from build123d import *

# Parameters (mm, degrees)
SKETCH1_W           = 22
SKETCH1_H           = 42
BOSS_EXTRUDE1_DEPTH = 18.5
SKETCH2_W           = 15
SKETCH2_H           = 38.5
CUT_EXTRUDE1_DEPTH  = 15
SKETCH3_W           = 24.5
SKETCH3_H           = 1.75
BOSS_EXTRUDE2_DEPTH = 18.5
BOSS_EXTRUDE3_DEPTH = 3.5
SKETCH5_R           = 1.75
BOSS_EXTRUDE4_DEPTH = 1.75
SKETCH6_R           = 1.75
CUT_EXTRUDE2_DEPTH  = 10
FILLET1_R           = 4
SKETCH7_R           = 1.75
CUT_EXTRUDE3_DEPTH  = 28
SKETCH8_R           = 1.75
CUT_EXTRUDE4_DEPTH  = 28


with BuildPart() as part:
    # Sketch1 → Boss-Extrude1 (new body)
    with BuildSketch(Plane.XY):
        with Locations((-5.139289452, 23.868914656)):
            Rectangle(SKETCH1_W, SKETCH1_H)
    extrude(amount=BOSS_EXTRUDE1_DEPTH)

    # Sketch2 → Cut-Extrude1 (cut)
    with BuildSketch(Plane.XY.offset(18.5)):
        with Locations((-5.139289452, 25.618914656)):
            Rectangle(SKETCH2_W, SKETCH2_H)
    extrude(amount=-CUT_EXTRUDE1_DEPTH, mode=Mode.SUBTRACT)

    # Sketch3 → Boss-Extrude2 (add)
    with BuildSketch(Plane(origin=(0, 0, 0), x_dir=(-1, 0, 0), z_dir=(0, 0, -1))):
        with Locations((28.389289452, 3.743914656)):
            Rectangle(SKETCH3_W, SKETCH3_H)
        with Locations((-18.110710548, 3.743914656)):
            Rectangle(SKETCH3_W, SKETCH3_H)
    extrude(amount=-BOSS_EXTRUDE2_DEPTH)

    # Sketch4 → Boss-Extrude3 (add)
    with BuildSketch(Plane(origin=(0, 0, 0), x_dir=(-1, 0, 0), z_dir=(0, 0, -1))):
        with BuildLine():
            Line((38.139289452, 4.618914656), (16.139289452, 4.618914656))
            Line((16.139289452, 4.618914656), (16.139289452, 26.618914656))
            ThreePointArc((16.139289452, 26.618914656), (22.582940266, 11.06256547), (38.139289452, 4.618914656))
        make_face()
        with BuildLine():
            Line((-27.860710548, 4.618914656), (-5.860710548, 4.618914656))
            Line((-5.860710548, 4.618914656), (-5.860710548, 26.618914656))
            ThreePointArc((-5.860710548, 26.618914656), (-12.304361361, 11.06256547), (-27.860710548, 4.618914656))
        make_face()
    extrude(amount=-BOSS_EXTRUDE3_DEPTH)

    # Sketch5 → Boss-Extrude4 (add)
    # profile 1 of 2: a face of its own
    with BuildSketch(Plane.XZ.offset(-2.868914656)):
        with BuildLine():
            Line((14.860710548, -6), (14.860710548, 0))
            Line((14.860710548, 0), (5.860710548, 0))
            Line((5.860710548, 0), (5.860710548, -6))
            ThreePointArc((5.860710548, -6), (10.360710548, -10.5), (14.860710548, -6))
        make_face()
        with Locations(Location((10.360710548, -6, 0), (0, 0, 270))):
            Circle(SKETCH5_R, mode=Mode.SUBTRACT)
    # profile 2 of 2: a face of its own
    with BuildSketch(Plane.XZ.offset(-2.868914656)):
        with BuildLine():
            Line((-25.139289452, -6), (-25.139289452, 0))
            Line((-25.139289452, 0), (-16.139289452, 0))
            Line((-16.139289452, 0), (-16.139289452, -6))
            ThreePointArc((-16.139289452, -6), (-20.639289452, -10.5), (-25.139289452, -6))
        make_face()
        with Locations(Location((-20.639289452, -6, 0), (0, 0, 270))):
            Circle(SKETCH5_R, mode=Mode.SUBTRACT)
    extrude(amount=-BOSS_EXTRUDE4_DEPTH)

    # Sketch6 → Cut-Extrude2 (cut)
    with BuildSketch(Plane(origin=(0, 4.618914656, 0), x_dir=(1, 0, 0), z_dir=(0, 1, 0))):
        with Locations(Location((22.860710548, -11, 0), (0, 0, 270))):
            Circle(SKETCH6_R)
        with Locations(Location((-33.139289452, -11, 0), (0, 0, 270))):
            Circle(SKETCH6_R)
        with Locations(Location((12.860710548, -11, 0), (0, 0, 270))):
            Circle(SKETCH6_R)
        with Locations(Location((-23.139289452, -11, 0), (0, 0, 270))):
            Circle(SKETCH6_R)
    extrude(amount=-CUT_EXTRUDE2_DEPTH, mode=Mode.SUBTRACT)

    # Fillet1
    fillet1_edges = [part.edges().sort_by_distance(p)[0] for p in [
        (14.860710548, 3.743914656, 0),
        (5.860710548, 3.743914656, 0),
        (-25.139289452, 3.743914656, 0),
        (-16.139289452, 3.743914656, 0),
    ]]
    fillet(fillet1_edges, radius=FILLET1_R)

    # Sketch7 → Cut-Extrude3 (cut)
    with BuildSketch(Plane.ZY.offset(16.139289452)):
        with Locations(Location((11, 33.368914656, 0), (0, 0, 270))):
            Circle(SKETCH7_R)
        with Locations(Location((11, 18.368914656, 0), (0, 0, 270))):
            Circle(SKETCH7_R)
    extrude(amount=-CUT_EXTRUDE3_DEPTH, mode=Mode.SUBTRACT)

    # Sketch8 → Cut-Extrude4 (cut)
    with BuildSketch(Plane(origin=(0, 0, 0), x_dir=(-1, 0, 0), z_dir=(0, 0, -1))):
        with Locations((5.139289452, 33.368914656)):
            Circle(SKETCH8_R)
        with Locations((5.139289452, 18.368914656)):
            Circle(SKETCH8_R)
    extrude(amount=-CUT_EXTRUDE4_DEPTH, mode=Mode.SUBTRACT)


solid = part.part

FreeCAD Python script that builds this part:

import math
import FreeCAD as App
import Part
import Sketcher

V = App.Vector


def edges_at(feature, points):
    """Names of the edges that pass closest to the given points."""
    edges = feature.Shape.Edges
    near = lambda p: min(range(len(edges)), key=lambda i: edges[i].distToShape(Part.Vertex(*p))[0])
    return sorted({f"Edge{near(p) + 1}" for p in points})

doc = App.newDocument("Part")
body = doc.addObject("PartDesign::Body", "Body")

sketch1 = body.newObject("Sketcher::SketchObject", "Sketch")
sketch1.AttachmentSupport = (doc.getObject("XY_Plane"), [""])
sketch1.MapMode = "FlatFace"
sketch1.addGeometry(Part.LineSegment(V(-16, 45, 0), V(-16, 3, 0)), False)
sketch1.addGeometry(Part.LineSegment(V(-16, 3, 0), V(6, 3, 0)), False)
sketch1.addGeometry(Part.LineSegment(V(6, 3, 0), V(6, 45, 0)), False)
sketch1.addGeometry(Part.LineSegment(V(6, 45, 0), V(-16, 45, 0)), False)
sketch1.addConstraint(Sketcher.Constraint("Coincident", 0, 2, 1, 1))
sketch1.addConstraint(Sketcher.Constraint("Coincident", 1, 2, 2, 1))
sketch1.addConstraint(Sketcher.Constraint("Coincident", 2, 2, 3, 1))
sketch1.addConstraint(Sketcher.Constraint("Coincident", 3, 2, 0, 1))
sketch1.addConstraint(Sketcher.Constraint("Vertical", 0))
sketch1.addConstraint(Sketcher.Constraint("Horizontal", 1))
sketch1.addConstraint(Sketcher.Constraint("Vertical", 2))
sketch1.addConstraint(Sketcher.Constraint("Horizontal", 3))
sketch1.addConstraint(Sketcher.Constraint("DistanceX", 1, 1, 1, 2, 22.0))
sketch1.addConstraint(Sketcher.Constraint("DistanceY", 0, 2, 0, 1, 42.0))
sketch1.addConstraint(Sketcher.Constraint("DistanceX", 0, 2, -1, 1, 16.139289))
sketch1.addConstraint(Sketcher.Constraint("DistanceY", -1, 1, 0, 2, 2.868915))
pad1 = body.newObject("PartDesign::Pad", "Pad")
pad1.Profile = sketch1
pad1.Length = 18.5

sketch2 = body.newObject("Sketcher::SketchObject", "Sketch001")
sketch2.AttachmentSupport = (doc.getObject("XY_Plane"), [""])
sketch2.MapMode = "FlatFace"
sketch2.AttachmentOffset = App.Placement(V(0, 0, 18.5), App.Rotation())
sketch2.addGeometry(Part.LineSegment(V(-13, 45, 0), V(-13, 6, 0)), False)
sketch2.addGeometry(Part.LineSegment(V(-13, 6, 0), V(2, 6, 0)), False)
sketch2.addGeometry(Part.LineSegment(V(2, 6, 0), V(2, 45, 0)), False)
sketch2.addGeometry(Part.LineSegment(V(2, 45, 0), V(-13, 45, 0)), False)
sketch2.addConstraint(Sketcher.Constraint("Coincident", 0, 2, 1, 1))
sketch2.addConstraint(Sketcher.Constraint("Coincident", 1, 2, 2, 1))
sketch2.addConstraint(Sketcher.Constraint("Coincident", 2, 2, 3, 1))
sketch2.addConstraint(Sketcher.Constraint("Coincident", 3, 2, 0, 1))
sketch2.addConstraint(Sketcher.Constraint("Vertical", 0))
sketch2.addConstraint(Sketcher.Constraint("Horizontal", 1))
sketch2.addConstraint(Sketcher.Constraint("Vertical", 2))
sketch2.addConstraint(Sketcher.Constraint("Horizontal", 3))
sketch2.addConstraint(Sketcher.Constraint("DistanceX", 1, 1, 1, 2, 15.0))
sketch2.addConstraint(Sketcher.Constraint("DistanceY", 0, 2, 0, 1, 38.5))
sketch2.addConstraint(Sketcher.Constraint("DistanceX", 0, 2, -1, 1, 12.639289))
sketch2.addConstraint(Sketcher.Constraint("DistanceY", -1, 1, 0, 2, 6.368915))
pocket1 = body.newObject("PartDesign::Pocket", "Pocket")
pocket1.Profile = sketch2
pocket1.Length = 15

sketch3 = body.newObject("Sketcher::SketchObject", "Sketch002")
sketch3.AttachmentSupport = (doc.getObject("XY_Plane"), [""])
sketch3.MapMode = "FlatFace"
sketch3.addGeometry(Part.LineSegment(V(-16.1, 4.6, 0), V(-16.1, 2.9, 0)), False)
sketch3.addGeometry(Part.LineSegment(V(-16.1, 2.9, 0), V(-40.6, 2.9, 0)), False)
sketch3.addGeometry(Part.LineSegment(V(-40.6, 2.9, 0), V(-40.6, 4.6, 0)), False)
sketch3.addGeometry(Part.LineSegment(V(-40.6, 4.6, 0), V(-16.1, 4.6, 0)), False)
sketch3.addGeometry(Part.LineSegment(V(30.4, 4.6, 0), V(30.4, 2.9, 0)), False)
sketch3.addGeometry(Part.LineSegment(V(30.4, 2.9, 0), V(5.9, 2.9, 0)), False)
sketch3.addGeometry(Part.LineSegment(V(5.9, 2.9, 0), V(5.9, 4.6, 0)), False)
sketch3.addGeometry(Part.LineSegment(V(5.9, 4.6, 0), V(30.4, 4.6, 0)), False)
sketch3.addConstraint(Sketcher.Constraint("Coincident", 0, 2, 1, 1))
sketch3.addConstraint(Sketcher.Constraint("Coincident", 1, 2, 2, 1))
sketch3.addConstraint(Sketcher.Constraint("Coincident", 2, 2, 3, 1))
sketch3.addConstraint(Sketcher.Constraint("Coincident", 3, 2, 0, 1))
sketch3.addConstraint(Sketcher.Constraint("Coincident", 4, 2, 5, 1))
sketch3.addConstraint(Sketcher.Constraint("Coincident", 5, 2, 6, 1))
sketch3.addConstraint(Sketcher.Constraint("Coincident", 6, 2, 7, 1))
sketch3.addConstraint(Sketcher.Constraint("Coincident", 7, 2, 4, 1))
sketch3.addConstraint(Sketcher.Constraint("Vertical", 0))
sketch3.addConstraint(Sketcher.Constraint("Horizontal", 1))
sketch3.addConstraint(Sketcher.Constraint("Vertical", 2))
sketch3.addConstraint(Sketcher.Constraint("Horizontal", 3))
sketch3.addConstraint(Sketcher.Constraint("Vertical", 4))
sketch3.addConstraint(Sketcher.Constraint("Horizontal", 5))
sketch3.addConstraint(Sketcher.Constraint("Vertical", 6))
sketch3.addConstraint(Sketcher.Constraint("Horizontal", 7))
sketch3.addConstraint(Sketcher.Constraint("Horizontal", 1, 2, 4, 2))
sketch3.addConstraint(Sketcher.Constraint("Horizontal", 3, 2, 6, 2))
sketch3.addConstraint(Sketcher.Constraint("Equal", 3, 5))
sketch3.addConstraint(Sketcher.Constraint("DistanceX", 1, 2, 1, 1, 24.5))
sketch3.addConstraint(Sketcher.Constraint("DistanceX", 1, 2, 4, 2, 71.0))
sketch3.addConstraint(Sketcher.Constraint("DistanceY", 0, 2, 0, 1, 1.75))
sketch3.addConstraint(Sketcher.Constraint("DistanceX", 0, 2, -1, 1, 16.139289))
sketch3.addConstraint(Sketcher.Constraint("DistanceY", -1, 1, 0, 2, 2.868915))
pad2 = body.newObject("PartDesign::Pad", "Pad001")
pad2.Profile = sketch3
pad2.Length = 18.5

sketch4 = body.newObject("Sketcher::SketchObject", "Sketch003")
sketch4.AttachmentSupport = (doc.getObject("XY_Plane"), [""])
sketch4.MapMode = "FlatFace"
sketch4.addGeometry(Part.LineSegment(V(-16, 5, 0), V(-38, 5, 0)), False)
sketch4.addGeometry(Part.ArcOfCircle(Part.Circle(V(-38, 27, 0), V(0, 0, 1), 22), math.radians(-90), math.radians(0)), False)
sketch4.addGeometry(Part.LineSegment(V(-16, 27, 0), V(-16, 5, 0)), False)
sketch4.addGeometry(Part.LineSegment(V(28, 5, 0), V(6, 5, 0)), False)
sketch4.addGeometry(Part.LineSegment(V(6, 5, 0), V(6, 27, 0)), False)
sketch4.addGeometry(Part.ArcOfCircle(Part.Circle(V(28, 27, 0), V(0, 0, 1), 22), math.radians(180), math.radians(270)), False)
sketch4.addConstraint(Sketcher.Constraint("Tangent", 0, 2, 1, 1))
sketch4.addConstraint(Sketcher.Constraint("Tangent", 1, 2, 2, 1))
sketch4.addConstraint(Sketcher.Constraint("Coincident", 2, 2, 0, 1))
sketch4.addConstraint(Sketcher.Constraint("Coincident", 3, 2, 4, 1))
sketch4.addConstraint(Sketcher.Constraint("Tangent", 4, 2, 5, 1))
sketch4.addConstraint(Sketcher.Constraint("Tangent", 5, 2, 3, 1))
sketch4.addConstraint(Sketcher.Constraint("Horizontal", 0))
sketch4.addConstraint(Sketcher.Constraint("Vertical", 2))
sketch4.addConstraint(Sketcher.Constraint("Horizontal", 3))
sketch4.addConstraint(Sketcher.Constraint("Vertical", 4))
sketch4.addConstraint(Sketcher.Constraint("Equal", 1, 5))
sketch4.addConstraint(Sketcher.Constraint("Horizontal", 1, 3, 5, 3))
sketch4.addConstraint(Sketcher.Constraint("Radius", 1, 22.0))
sketch4.addConstraint(Sketcher.Constraint("DistanceX", 1, 3, 5, 3, 66.0))
sketch4.addConstraint(Sketcher.Constraint("DistanceX", 1, 3, -1, 1, 38.139289))
sketch4.addConstraint(Sketcher.Constraint("DistanceY", -1, 1, 1, 3, 26.618915))
pad3 = body.newObject("PartDesign::Pad", "Pad002")
pad3.Profile = sketch4
pad3.Length = 3.5

sketch5 = body.newObject("Sketcher::SketchObject", "Sketch004")
sketch5.AttachmentSupport = (doc.getObject("XZ_Plane"), [""])
sketch5.MapMode = "FlatFace"
sketch5.AttachmentOffset = App.Placement(V(0, 0, -2.868915), App.Rotation())
sketch5.addGeometry(Part.LineSegment(V(14.9, -6, 0), V(14.9, 0, 0)), False)
sketch5.addGeometry(Part.LineSegment(V(14.9, 0, 0), V(5.9, 0, 0)), False)
sketch5.addGeometry(Part.LineSegment(V(5.9, 0, 0), V(5.9, -6, 0)), False)
sketch5.addGeometry(Part.ArcOfCircle(Part.Circle(V(10.4, -6, 0), V(0, 0, 1), 4.5), math.radians(180), math.radians(360)), False)
sketch5.addGeometry(Part.Circle(V(10.4, -6, 0), V(0, 0, 1), 1.8), False)
sketch5.addGeometry(Part.LineSegment(V(-25.1, 0, 0), V(-25.1, -6, 0)), False)
sketch5.addGeometry(Part.ArcOfCircle(Part.Circle(V(-20.6, -6, 0), V(0, 0, 1), 4.5), math.radians(180), math.radians(360)), False)
sketch5.addGeometry(Part.LineSegment(V(-16.1, -6, 0), V(-16.1, 0, 0)), False)
sketch5.addGeometry(Part.LineSegment(V(-16.1, 0, 0), V(-25.1, 0, 0)), False)
sketch5.addGeometry(Part.Circle(V(-20.6, -6, 0), V(0, 0, 1), 1.8), False)
sketch5.addConstraint(Sketcher.Constraint("Coincident", 0, 2, 1, 1))
sketch5.addConstraint(Sketcher.Constraint("Coincident", 1, 2, 2, 1))
sketch5.addConstraint(Sketcher.Constraint("Tangent", 2, 2, 3, 1))
sketch5.addConstraint(Sketcher.Constraint("Tangent", 3, 2, 0, 1))
sketch5.addConstraint(Sketcher.Constraint("Tangent", 5, 2, 6, 1))
sketch5.addConstraint(Sketcher.Constraint("Tangent", 6, 2, 7, 1))
sketch5.addConstraint(Sketcher.Constraint("Coincident", 7, 2, 8, 1))
sketch5.addConstraint(Sketcher.Constraint("Coincident", 8, 2, 5, 1))
sketch5.addConstraint(Sketcher.Constraint("Vertical", 0))
sketch5.addConstraint(Sketcher.Constraint("Horizontal", 1))
sketch5.addConstraint(Sketcher.Constraint("Vertical", 2))
sketch5.addConstraint(Sketcher.Constraint("Vertical", 5))
sketch5.addConstraint(Sketcher.Constraint("Vertical", 7))
sketch5.addConstraint(Sketcher.Constraint("Horizontal", 8))
sketch5.addConstraint(Sketcher.Constraint("Coincident", 4, 3, 3, 3))
sketch5.addConstraint(Sketcher.Constraint("Coincident", 9, 3, 6, 3))
sketch5.addConstraint(Sketcher.Constraint("Equal", 3, 6))
sketch5.addConstraint(Sketcher.Constraint("Equal", 4, 9))
sketch5.addConstraint(Sketcher.Constraint("PointOnObject", 0, 2, -1))
sketch5.addConstraint(Sketcher.Constraint("PointOnObject", 7, 2, -1))
sketch5.addConstraint(Sketcher.Constraint("Horizontal", 4, 3, 6, 3))
sketch5.addConstraint(Sketcher.Constraint("Diameter", 4, 3.5))
sketch5.addConstraint(Sketcher.Constraint("Radius", 3, 4.5))
sketch5.addConstraint(Sketcher.Constraint("DistanceY", 0, 1, 0, 2, 6.0))
sketch5.addConstraint(Sketcher.Constraint("DistanceX", 6, 3, 3, 3, 31.0))
sketch5.addConstraint(Sketcher.Constraint("DistanceX", -1, 1, 3, 3, 10.360711))
pad4 = body.newObject("PartDesign::Pad", "Pad003")
pad4.Profile = sketch5
pad4.Length = 1.75
pad4.Reversed = True

sketch6 = body.newObject("Sketcher::SketchObject", "Sketch005")
sketch6.AttachmentSupport = (doc.getObject("XZ_Plane"), [""])
sketch6.MapMode = "FlatFace"
sketch6.AttachmentOffset = App.Placement(V(0, 0, -4.618915), App.Rotation())
sketch6.addGeometry(Part.Circle(V(22.9, 11, 0), V(0, 0, 1), 1.8), False)
sketch6.addGeometry(Part.Circle(V(-33.1, 11, 0), V(0, 0, 1), 1.8), False)
sketch6.addGeometry(Part.Circle(V(12.9, 11, 0), V(0, 0, 1), 1.8), False)
sketch6.addGeometry(Part.Circle(V(-23.1, 11, 0), V(0, 0, 1), 1.8), False)
sketch6.addConstraint(Sketcher.Constraint("Equal", 0, 1))
sketch6.addConstraint(Sketcher.Constraint("Equal", 1, 2))
sketch6.addConstraint(Sketcher.Constraint("Equal", 2, 3))
sketch6.addConstraint(Sketcher.Constraint("Horizontal", 0, 3, 1, 3))
sketch6.addConstraint(Sketcher.Constraint("Horizontal", 1, 3, 2, 3))
sketch6.addConstraint(Sketcher.Constraint("Horizontal", 2, 3, 3, 3))
sketch6.addConstraint(Sketcher.Constraint("Diameter", 0, 3.5))
sketch6.addConstraint(Sketcher.Constraint("DistanceY", -1, 1, 0, 3, 11.0))
sketch6.addConstraint(Sketcher.Constraint("DistanceX", 1, 3, 0, 3, 56.0))
sketch6.addConstraint(Sketcher.Constraint("DistanceX", 2, 3, 0, 3, 10.0))
sketch6.addConstraint(Sketcher.Constraint("DistanceX", 1, 3, 3, 3, 10.0))
sketch6.addConstraint(Sketcher.Constraint("DistanceX", -1, 1, 0, 3, 22.860711))
pocket2 = body.newObject("PartDesign::Pocket", "Pocket001")
pocket2.Profile = sketch6
pocket2.Length = 10
pocket2.Reversed = True
doc.recompute()

fillet = body.newObject("PartDesign::Fillet", "Fillet")
fillet.Base = (pocket2, edges_at(pocket2, [
    (14.861, 3.744, 0),
    (5.861, 3.744, 0),
    (-25.139, 3.744, 0),
    (-16.139, 3.744, 0),
]))
fillet.Radius = 4

sketch7 = body.newObject("Sketcher::SketchObject", "Sketch006")
sketch7.AttachmentSupport = (doc.getObject("YZ_Plane"), [""])
sketch7.MapMode = "FlatFace"
sketch7.AttachmentOffset = App.Placement(V(0, 0, -16.139289), App.Rotation())
sketch7.addGeometry(Part.Circle(V(33.4, 11, 0), V(0, 0, 1), 1.8), False)
sketch7.addGeometry(Part.Circle(V(18.4, 11, 0), V(0, 0, 1), 1.8), False)
sketch7.addConstraint(Sketcher.Constraint("Equal", 0, 1))
sketch7.addConstraint(Sketcher.Constraint("Horizontal", 0, 3, 1, 3))
sketch7.addConstraint(Sketcher.Constraint("Diameter", 0, 3.5))
sketch7.addConstraint(Sketcher.Constraint("DistanceY", -1, 1, 0, 3, 11.0))
sketch7.addConstraint(Sketcher.Constraint("DistanceX", 1, 3, 0, 3, 15.0))
sketch7.addConstraint(Sketcher.Constraint("DistanceX", -1, 1, 0, 3, 33.368915))
pocket3 = body.newObject("PartDesign::Pocket", "Pocket002")
pocket3.Profile = sketch7
pocket3.Length = 28
pocket3.Reversed = True

sketch8 = body.newObject("Sketcher::SketchObject", "Sketch007")
sketch8.AttachmentSupport = (doc.getObject("XY_Plane"), [""])
sketch8.MapMode = "FlatFace"
sketch8.addGeometry(Part.Circle(V(-5.1, 33.4, 0), V(0, 0, 1), 1.8), False)
sketch8.addGeometry(Part.Circle(V(-5.1, 18.4, 0), V(0, 0, 1), 1.8), False)
sketch8.addConstraint(Sketcher.Constraint("Equal", 0, 1))
sketch8.addConstraint(Sketcher.Constraint("Vertical", 0, 3, 1, 3))
sketch8.addConstraint(Sketcher.Constraint("Diameter", 0, 3.5))
sketch8.addConstraint(Sketcher.Constraint("DistanceY", 1, 3, 0, 3, 15.0))
sketch8.addConstraint(Sketcher.Constraint("DistanceX", 0, 3, -1, 1, 5.139289))
sketch8.addConstraint(Sketcher.Constraint("DistanceY", -1, 1, 0, 3, 33.368915))
pocket4 = body.newObject("PartDesign::Pocket", "Pocket003")
pocket4.Profile = sketch8
pocket4.Length = 28
pocket4.Reversed = True

doc.recompute()
